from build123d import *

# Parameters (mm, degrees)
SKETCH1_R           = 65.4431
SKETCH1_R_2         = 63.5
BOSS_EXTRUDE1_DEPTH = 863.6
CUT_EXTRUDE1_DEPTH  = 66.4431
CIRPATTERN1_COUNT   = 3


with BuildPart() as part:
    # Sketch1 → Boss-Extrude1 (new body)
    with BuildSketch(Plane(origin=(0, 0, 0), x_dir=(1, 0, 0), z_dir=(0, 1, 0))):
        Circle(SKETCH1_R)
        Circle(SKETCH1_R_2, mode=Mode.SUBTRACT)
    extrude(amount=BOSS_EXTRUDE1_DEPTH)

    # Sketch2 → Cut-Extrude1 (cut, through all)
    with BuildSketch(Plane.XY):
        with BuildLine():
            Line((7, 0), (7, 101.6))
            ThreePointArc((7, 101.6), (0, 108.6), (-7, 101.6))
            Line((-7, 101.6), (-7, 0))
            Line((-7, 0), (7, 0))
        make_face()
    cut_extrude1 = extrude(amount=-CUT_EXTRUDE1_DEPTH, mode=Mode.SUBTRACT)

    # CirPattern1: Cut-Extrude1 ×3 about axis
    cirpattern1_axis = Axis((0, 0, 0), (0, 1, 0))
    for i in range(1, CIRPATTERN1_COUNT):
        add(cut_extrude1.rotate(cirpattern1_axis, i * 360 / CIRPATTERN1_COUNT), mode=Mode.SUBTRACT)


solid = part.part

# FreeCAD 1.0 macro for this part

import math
import FreeCAD as App
import Part
import Sketcher

V = App.Vector
Q = App.Units.Quantity

doc = App.newDocument("Part")
body = doc.addObject("PartDesign::Body", "Body")

sketch1 = doc.addObject("Sketcher::SketchObject", "Sketch")
body.addObject(sketch1)
sketch1.AttachmentSupport = (doc.XZ_Plane, [""])
sketch1.MapMode = "FlatFace"
sketch1.addGeometry(Part.Circle(V(0, 0, 0), V(0, 0, 1), 65), False)
sketch1.addGeometry(Part.Circle(V(0, 0, 0), V(0, 0, 1), 64), False)
sketch1.addConstraint(Sketcher.Constraint("Coincident", 0, 3, -1, 1))
sketch1.addConstraint(Sketcher.Constraint("Coincident", 1, 3, -1, 1))
sketch1.addConstraint(Sketcher.Constraint("Diameter", 1, Q("5 in")))
sketch1.addConstraint(Sketcher.Constraint("Diameter", 0, Q("5.153 in")))
pad1 = doc.addObject("PartDesign::Pad", "Pad")
body.addObject(pad1)
pad1.Profile = sketch1
pad1.Length = Q("34 in")
pad1.Reversed = True

sketch2 = doc.addObject("Sketcher::SketchObject", "Sketch001")
body.addObject(sketch2)
sketch2.AttachmentSupport = (doc.XY_Plane, [""])
sketch2.MapMode = "FlatFace"
sketch2.addGeometry(Part.LineSegment(V(7, 0, 0), V(7, 102, 0)), False)
sketch2.addGeometry(Part.ArcOfCircle(Part.Circle(V(0, 102, 0), V(0, 0, 1), 7), math.radians(0), math.radians(180)), False)
sketch2.addGeometry(Part.LineSegment(V(-7, 102, 0), V(-7, 0, 0)), False)
sketch2.addGeometry(Part.LineSegment(V(-7, 0, 0), V(7, 0, 0)), False)
sketch2.addConstraint(Sketcher.Constraint("Tangent", 0, 2, 1, 1))
sketch2.addConstraint(Sketcher.Constraint("Tangent", 1, 2, 2, 1))
sketch2.addConstraint(Sketcher.Constraint("Coincident", 2, 2, 3, 1))
sketch2.addConstraint(Sketcher.Constraint("Coincident", 3, 2, 0, 1))
sketch2.addConstraint(Sketcher.Constraint("Vertical", 0))
sketch2.addConstraint(Sketcher.Constraint("Vertical", 2))
sketch2.addConstraint(Sketcher.Constraint("Horizontal", 3))
sketch2.addConstraint(Sketcher.Constraint("Symmetric", 2, 2, 3, 2, -1, 1))
sketch2.addConstraint(Sketcher.Constraint("DistanceY", 0, 1, 0, 2, Q("4 in")))
sketch2.addConstraint(Sketcher.Constraint("Radius", 1, 7.0))
pocket1 = doc.addObject("PartDesign::Pocket", "Pocket")
body.addObject(pocket1)
pocket1.Profile = sketch2
pocket1.Type = "ThroughAll"
doc.recompute()

polarpattern = doc.addObject("PartDesign::PolarPattern", "PolarPattern")
body.addObject(polarpattern)
polarpattern.Originals = [pocket1]
polarpattern.Axis = (doc.Y_Axis, [""])
polarpattern.Angle = 360
polarpattern.Occurrences = 3
body.Tip = polarpattern

doc.recompute()
